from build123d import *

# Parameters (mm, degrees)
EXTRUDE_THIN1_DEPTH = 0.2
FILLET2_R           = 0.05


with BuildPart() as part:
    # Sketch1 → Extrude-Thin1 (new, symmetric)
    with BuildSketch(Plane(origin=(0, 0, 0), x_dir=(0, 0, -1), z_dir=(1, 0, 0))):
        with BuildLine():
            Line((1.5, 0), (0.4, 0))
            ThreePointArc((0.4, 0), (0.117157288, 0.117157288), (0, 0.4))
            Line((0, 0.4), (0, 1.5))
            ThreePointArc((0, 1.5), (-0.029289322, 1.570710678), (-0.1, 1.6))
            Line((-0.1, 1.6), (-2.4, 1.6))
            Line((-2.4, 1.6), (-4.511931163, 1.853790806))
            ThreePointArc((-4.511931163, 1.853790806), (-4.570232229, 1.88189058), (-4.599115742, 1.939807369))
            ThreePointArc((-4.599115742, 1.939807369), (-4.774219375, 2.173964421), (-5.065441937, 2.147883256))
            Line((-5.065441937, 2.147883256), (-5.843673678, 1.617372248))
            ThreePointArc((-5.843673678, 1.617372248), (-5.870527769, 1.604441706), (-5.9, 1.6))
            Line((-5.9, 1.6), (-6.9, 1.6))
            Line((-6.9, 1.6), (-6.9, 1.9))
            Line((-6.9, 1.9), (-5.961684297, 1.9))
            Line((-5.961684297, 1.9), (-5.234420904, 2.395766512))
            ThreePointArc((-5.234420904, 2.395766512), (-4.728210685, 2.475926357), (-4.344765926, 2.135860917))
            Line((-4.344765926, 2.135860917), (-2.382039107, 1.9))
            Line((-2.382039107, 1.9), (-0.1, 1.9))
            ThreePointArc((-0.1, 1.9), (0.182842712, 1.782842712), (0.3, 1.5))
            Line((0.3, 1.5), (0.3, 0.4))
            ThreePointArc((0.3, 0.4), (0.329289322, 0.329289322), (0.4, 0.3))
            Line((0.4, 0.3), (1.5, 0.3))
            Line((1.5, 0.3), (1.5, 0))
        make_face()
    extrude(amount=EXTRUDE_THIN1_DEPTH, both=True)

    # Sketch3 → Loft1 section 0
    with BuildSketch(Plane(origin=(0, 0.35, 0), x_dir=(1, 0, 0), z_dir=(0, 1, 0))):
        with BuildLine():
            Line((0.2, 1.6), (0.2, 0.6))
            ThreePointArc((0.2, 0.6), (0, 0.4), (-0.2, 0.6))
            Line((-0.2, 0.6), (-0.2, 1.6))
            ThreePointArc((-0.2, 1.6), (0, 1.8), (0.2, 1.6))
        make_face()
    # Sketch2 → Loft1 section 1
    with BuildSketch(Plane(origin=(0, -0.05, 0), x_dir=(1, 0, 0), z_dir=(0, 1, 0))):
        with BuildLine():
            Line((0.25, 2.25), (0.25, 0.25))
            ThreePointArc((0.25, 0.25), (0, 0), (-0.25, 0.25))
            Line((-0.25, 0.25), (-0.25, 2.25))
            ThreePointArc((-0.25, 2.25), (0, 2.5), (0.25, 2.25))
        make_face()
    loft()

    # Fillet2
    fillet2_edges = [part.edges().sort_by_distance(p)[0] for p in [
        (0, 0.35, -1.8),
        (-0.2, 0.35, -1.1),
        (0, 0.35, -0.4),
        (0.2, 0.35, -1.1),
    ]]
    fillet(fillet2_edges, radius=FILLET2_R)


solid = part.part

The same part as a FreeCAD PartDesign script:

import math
import FreeCAD as App
import Part
import Sketcher
from FreeCAD import Vector
Q = App.Units.Quantity


def edges_at(feature, points):
    """Names of the edges that pass closest to the given points."""
    edges = feature.Shape.Edges
    near = lambda p: min(range(len(edges)), key=lambda i: edges[i].distToShape(Part.Vertex(*p))[0])
    return sorted({f"Edge{near(p) + 1}" for p in points})

doc = App.newDocument("Part")
body = doc.addObject("PartDesign::Body", "Body")

# Sketch on YZ plane
sketch1 = body.newObject("Sketcher::SketchObject", "Sketch")
sketch1.AttachmentSupport = (doc.getObject("YZ_Plane"), [""])
sketch1.MapMode = "FlatFace"
sketch1.addGeometry(Part.LineSegment(Vector(0, -0.4, 0), Vector(0, -1.5, 0)), False)
sketch1.addGeometry(Part.LineSegment(Vector(0, -1.5, 0), Vector(0.3, -1.5, 0)), False)
sketch1.addGeometry(Part.LineSegment(Vector(0.3, -1.5, 0), Vector(0.3, -0.4, 0)), False)
sketch1.addGeometry(Part.ArcOfCircle(Part.Circle(Vector(0.4, -0.4, 0), Vector(0, 0, 1), 0.1), math.radians(90), math.radians(180)), False)
sketch1.addGeometry(Part.LineSegment(Vector(0.4, -0.3, 0), Vector(1.5, -0.3, 0)), False)
sketch1.addGeometry(Part.ArcOfCircle(Part.Circle(Vector(1.5, 0.1, 0), Vector(0, 0, 1), 0.4), math.radians(-90), math.radians(0)), False)
sketch1.addGeometry(Part.LineSegment(Vector(1.9, 0.1, 0), Vector(1.9, 2.38, 0)), False)
sketch1.addGeometry(Part.LineSegment(Vector(1.9, 2.38, 0), Vector(2.14, 4.34, 0)), False)
sketch1.addGeometry(Part.ArcOfCircle(Part.Circle(Vector(1.9, 4.9, 0), Vector(0, 0, 1), 0.6), math.radians(-67), math.radians(34)), False)
sketch1.addGeometry(Part.LineSegment(Vector(2.4, 5.23, 0), Vector(1.9, 5.96, 0)), False)
sketch1.addGeometry(Part.LineSegment(Vector(1.9, 5.96, 0), Vector(1.9, 6.9, 0)), False)
sketch1.addGeometry(Part.LineSegment(Vector(1.9, 6.9, 0), Vector(1.6, 6.9, 0)), False)
sketch1.addGeometry(Part.LineSegment(Vector(1.6, 6.9, 0), Vector(1.6, 5.9, 0)), False)
sketch1.addGeometry(Part.ArcOfCircle(Part.Circle(Vector(1.7, 5.9, 0), Vector(0, 0, 1), 0.1), math.radians(-180), math.radians(-146)), False)
sketch1.addGeometry(Part.LineSegment(Vector(1.62, 5.84, 0), Vector(2.15, 5.07, 0)), False)
sketch1.addGeometry(Part.ArcOfCircle(Part.Circle(Vector(1.9, 4.9, 0), Vector(0, 0, 1), 0.3), math.radians(-82), math.radians(34)), False)
sketch1.addGeometry(Part.ArcOfCircle(Part.Circle(Vector(1.95, 4.5, 0), Vector(0, 0, 1), 0.1), math.radians(98), math.radians(173)), False)
sketch1.addGeometry(Part.LineSegment(Vector(1.85, 4.51, 0), Vector(1.6, 2.4, 0)), False)
sketch1.addGeometry(Part.LineSegment(Vector(1.6, 2.4, 0), Vector(1.6, 0.1, 0)), False)
sketch1.addGeometry(Part.ArcOfCircle(Part.Circle(Vector(1.5, 0.1, 0), Vector(0, 0, 1), 0.1), math.radians(-90), math.radians(0)), False)
sketch1.addGeometry(Part.LineSegment(Vector(1.5, 0, 0), Vector(0.4, 0, 0)), False)
sketch1.addGeometry(Part.ArcOfCircle(Part.Circle(Vector(0.4, -0.4, 0), Vector(0, 0, 1), 0.4), math.radians(90), math.radians(180)), False)
sketch1.addConstraint(Sketcher.Constraint("Coincident", 0, 2, 1, 1))
sketch1.addConstraint(Sketcher.Constraint("Coincident", 1, 2, 2, 1))
sketch1.addConstraint(Sketcher.Constraint("Tangent", 2, 2, 3, 2))
sketch1.addConstraint(Sketcher.Constraint("Tangent", 3, 1, 4, 1))
sketch1.addConstraint(Sketcher.Constraint("Tangent", 4, 2, 5, 1))
sketch1.addConstraint(Sketcher.Constraint("Tangent", 5, 2, 6, 1))
sketch1.addConstraint(Sketcher.Constraint("Coincident", 6, 2, 7, 1))
sketch1.addConstraint(Sketcher.Constraint("Coincident", 7, 2, 8, 1))
sketch1.addConstraint(Sketcher.Constraint("Tangent", 8, 2, 9, 1))
sketch1.addConstraint(Sketcher.Constraint("Coincident", 9, 2, 10, 1))
sketch1.addConstraint(Sketcher.Constraint("Coincident", 10, 2, 11, 1))
sketch1.addConstraint(Sketcher.Constraint("Coincident", 11, 2, 12, 1))
sketch1.addConstraint(Sketcher.Constraint("Tangent", 12, 2, 13, 1))
sketch1.addConstraint(Sketcher.Constraint("Tangent", 13, 2, 14, 1))
sketch1.addConstraint(Sketcher.Constraint("Tangent", 14, 2, 15, 2))
sketch1.addConstraint(Sketcher.Constraint("Tangent", 15, 1, 16, 1))
sketch1.addConstraint(Sketcher.Constraint("Tangent", 16, 2, 17, 1))
sketch1.addConstraint(Sketcher.Constraint("Coincident", 17, 2, 18, 1))
sketch1.addConstraint(Sketcher.Constraint("Tangent", 18, 2, 19, 2))
sketch1.addConstraint(Sketcher.Constraint("Tangent", 19, 1, 20, 1))
sketch1.addConstraint(Sketcher.Constraint("Tangent", 20, 2, 21, 1))
sketch1.addConstraint(Sketcher.Constraint("Tangent", 21, 2, 0, 1))
sketch1.addConstraint(Sketcher.Constraint("Vertical", 0))
sketch1.addConstraint(Sketcher.Constraint("Horizontal", 1))
sketch1.addConstraint(Sketcher.Constraint("Vertical", 2))
sketch1.addConstraint(Sketcher.Constraint("Horizontal", 4))
sketch1.addConstraint(Sketcher.Constraint("Vertical", 6))
sketch1.addConstraint(Sketcher.Constraint("Vertical", 10))
sketch1.addConstraint(Sketcher.Constraint("Horizontal", 11))
sketch1.addConstraint(Sketcher.Constraint("Vertical", 12))
sketch1.addConstraint(Sketcher.Constraint("Vertical", 18))
sketch1.addConstraint(Sketcher.Constraint("Horizontal", 20))
sketch1.addConstraint(Sketcher.Constraint("Coincident", 15, 3, 8, 3))
sketch1.addConstraint(Sketcher.Constraint("Coincident", 19, 3, 5, 3))
sketch1.addConstraint(Sketcher.Constraint("Coincident", 21, 3, 3, 3))
sketch1.addConstraint(Sketcher.Constraint("Equal", 3, 13))
sketch1.addConstraint(Sketcher.Constraint("Equal", 13, 16))
sketch1.addConstraint(Sketcher.Constraint("Equal", 16, 19))
sketch1.addConstraint(Sketcher.Constraint("PointOnObject", 0, 2, -2))
sketch1.addConstraint(Sketcher.Constraint("PointOnObject", 19, 1, -1))
sketch1.addConstraint(Sketcher.Constraint("Parallel", 9, 14))
sketch1.addConstraint(Sketcher.Constraint("Parallel", 7, 17))
sketch1.addConstraint(Sketcher.Constraint("Vertical", 15, 3, 5, 2))
sketch1.addConstraint(Sketcher.Constraint("Vertical", 6, 2, 9, 2))
sketch1.addConstraint(Sketcher.Constraint("Vertical", 12, 2, 17, 2))
sketch1.addConstraint(Sketcher.Constraint("Equal", 20, 0))
sketch1.addConstraint(Sketcher.Constraint("Radius", 3, Q("0.1 mm")))
sketch1.addConstraint(Sketcher.Constraint("Radius", 5, Q("0.4 mm")))
sketch1.addConstraint(Sketcher.Constraint("Radius", 8, Q("0.6 mm")))
sketch1.addConstraint(Sketcher.Constraint("Radius", 15, Q("0.3 mm")))
sketch1.addConstraint(Sketcher.Constraint("DistanceY", 12, 2, 12, 1, Q("1 mm")))
sketch1.addConstraint(Sketcher.Constraint("DistanceX", 4, 1, 4, 2, Q("1.1 mm")))
sketch1.addConstraint(Sketcher.Constraint("DistanceY", 18, 2, 18, 1, Q("2.3 mm")))
sketch1.addConstraint(Sketcher.Constraint("DistanceY", 0, 2, 16, 3, Q("6 mm")))
sketch1.addConstraint(Sketcher.Constraint("DistanceY", -1, 1, 13, 3, Q("5.9 mm")))
sketch1.addConstraint(Sketcher.Constraint("DistanceY", 6, 1, 6, 2, Q("2.282039 mm")))
sketch1.addConstraint(Sketcher.Constraint("Distance", 9, Q("0.880168 mm")))
pad1 = body.newObject("PartDesign::Pad", "Pad")
pad1.Profile = sketch1
pad1.Length = 0.4
pad1.Midplane = True

# Sketch on XZ plane
sketch2 = body.newObject("Sketcher::SketchObject", "Sketch001")
sketch2.AttachmentSupport = (doc.getObject("XZ_Plane"), [""])
sketch2.MapMode = "FlatFace"
sketch2.AttachmentOffset = App.Placement(Vector(0, 0, -0.35), App.Rotation())
sketch2.addGeometry(Part.LineSegment(Vector(0.2, -0.6, 0), Vector(0.2, -1.6, 0)), False)
sketch2.addGeometry(Part.ArcOfCircle(Part.Circle(Vector(0, -1.6, 0), Vector(0, 0, 1), 0.2), math.radians(180), math.radians(360)), False)
sketch2.addGeometry(Part.LineSegment(Vector(-0.2, -1.6, 0), Vector(-0.2, -0.6, 0)), False)
sketch2.addGeometry(Part.ArcOfCircle(Part.Circle(Vector(0, -0.6, 0), Vector(0, 0, 1), 0.2), math.radians(0), math.radians(180)), False)
sketch2.addConstraint(Sketcher.Constraint("Tangent", 0, 2, 1, 2))
sketch2.addConstraint(Sketcher.Constraint("Tangent", 1, 1, 2, 1))
sketch2.addConstraint(Sketcher.Constraint("Tangent", 2, 2, 3, 2))
sketch2.addConstraint(Sketcher.Constraint("Tangent", 3, 1, 0, 1))
sketch2.addConstraint(Sketcher.Constraint("Vertical", 0))
sketch2.addConstraint(Sketcher.Constraint("Vertical", 2))
sketch2.addConstraint(Sketcher.Constraint("PointOnObject", 1, 3, -2))
sketch2.addConstraint(Sketcher.Constraint("Radius", 1, Q("0.2 mm")))
sketch2.addConstraint(Sketcher.Constraint("DistanceY", 0, 2, 0, 1, Q("1 mm")))
sketch2.addConstraint(Sketcher.Constraint("DistanceY", 1, 3, -1, 1, Q("1.6 mm")))

# Sketch on XZ plane
sketch3 = body.newObject("Sketcher::SketchObject", "Sketch002")
sketch3.AttachmentSupport = (doc.getObject("XZ_Plane"), [""])
sketch3.MapMode = "FlatFace"
sketch3.AttachmentOffset = App.Placement(Vector(0, 0, 0.05), App.Rotation())
sketch3.addGeometry(Part.LineSegment(Vector(0.25, -0.25, 0), Vector(0.25, -2.25, 0)), False)
sketch3.addGeometry(Part.ArcOfCircle(Part.Circle(Vector(0, -2.25, 0), Vector(0, 0, 1), 0.25), math.radians(180), math.radians(360)), False)
sketch3.addGeometry(Part.LineSegment(Vector(-0.25, -2.25, 0), Vector(-0.25, -0.25, 0)), False)
sketch3.addGeometry(Part.ArcOfCircle(Part.Circle(Vector(0, -0.25, 0), Vector(0, 0, 1), 0.25), math.radians(0), math.radians(180)), False)
sketch3.addConstraint(Sketcher.Constraint("Tangent", 0, 2, 1, 2))
sketch3.addConstraint(Sketcher.Constraint("Tangent", 1, 1, 2, 1))
sketch3.addConstraint(Sketcher.Constraint("Tangent", 2, 2, 3, 2))
sketch3.addConstraint(Sketcher.Constraint("Tangent", 3, 1, 0, 1))
sketch3.addConstraint(Sketcher.Constraint("Vertical", 0))
sketch3.addConstraint(Sketcher.Constraint("Vertical", 2))
sketch3.addConstraint(Sketcher.Constraint("PointOnObject", 1, 3, -2))
sketch3.addConstraint(Sketcher.Constraint("DistanceY", 0, 2, 0, 1, Q("2 mm")))
sketch3.addConstraint(Sketcher.Constraint("Radius", 1, Q("0.25 mm")))
sketch3.addConstraint(Sketcher.Constraint("DistanceY", 1, 3, -1, 1, Q("2.25 mm")))

additiveloft = body.newObject("PartDesign::AdditiveLoft", "AdditiveLoft")
additiveloft.Profile = sketch2
additiveloft.Sections = [sketch3]
doc.recompute()

fillet = body.newObject("PartDesign::Fillet", "Fillet")
fillet.Base = (additiveloft, edges_at(additiveloft, [
    (0, 0.35, -1.8),
    (-0.2, 0.35, -1.1),
    (0, 0.35, -0.4),
    (0.2, 0.35, -1.1),
]))
fillet.Radius = 0.05

doc.recompute()
